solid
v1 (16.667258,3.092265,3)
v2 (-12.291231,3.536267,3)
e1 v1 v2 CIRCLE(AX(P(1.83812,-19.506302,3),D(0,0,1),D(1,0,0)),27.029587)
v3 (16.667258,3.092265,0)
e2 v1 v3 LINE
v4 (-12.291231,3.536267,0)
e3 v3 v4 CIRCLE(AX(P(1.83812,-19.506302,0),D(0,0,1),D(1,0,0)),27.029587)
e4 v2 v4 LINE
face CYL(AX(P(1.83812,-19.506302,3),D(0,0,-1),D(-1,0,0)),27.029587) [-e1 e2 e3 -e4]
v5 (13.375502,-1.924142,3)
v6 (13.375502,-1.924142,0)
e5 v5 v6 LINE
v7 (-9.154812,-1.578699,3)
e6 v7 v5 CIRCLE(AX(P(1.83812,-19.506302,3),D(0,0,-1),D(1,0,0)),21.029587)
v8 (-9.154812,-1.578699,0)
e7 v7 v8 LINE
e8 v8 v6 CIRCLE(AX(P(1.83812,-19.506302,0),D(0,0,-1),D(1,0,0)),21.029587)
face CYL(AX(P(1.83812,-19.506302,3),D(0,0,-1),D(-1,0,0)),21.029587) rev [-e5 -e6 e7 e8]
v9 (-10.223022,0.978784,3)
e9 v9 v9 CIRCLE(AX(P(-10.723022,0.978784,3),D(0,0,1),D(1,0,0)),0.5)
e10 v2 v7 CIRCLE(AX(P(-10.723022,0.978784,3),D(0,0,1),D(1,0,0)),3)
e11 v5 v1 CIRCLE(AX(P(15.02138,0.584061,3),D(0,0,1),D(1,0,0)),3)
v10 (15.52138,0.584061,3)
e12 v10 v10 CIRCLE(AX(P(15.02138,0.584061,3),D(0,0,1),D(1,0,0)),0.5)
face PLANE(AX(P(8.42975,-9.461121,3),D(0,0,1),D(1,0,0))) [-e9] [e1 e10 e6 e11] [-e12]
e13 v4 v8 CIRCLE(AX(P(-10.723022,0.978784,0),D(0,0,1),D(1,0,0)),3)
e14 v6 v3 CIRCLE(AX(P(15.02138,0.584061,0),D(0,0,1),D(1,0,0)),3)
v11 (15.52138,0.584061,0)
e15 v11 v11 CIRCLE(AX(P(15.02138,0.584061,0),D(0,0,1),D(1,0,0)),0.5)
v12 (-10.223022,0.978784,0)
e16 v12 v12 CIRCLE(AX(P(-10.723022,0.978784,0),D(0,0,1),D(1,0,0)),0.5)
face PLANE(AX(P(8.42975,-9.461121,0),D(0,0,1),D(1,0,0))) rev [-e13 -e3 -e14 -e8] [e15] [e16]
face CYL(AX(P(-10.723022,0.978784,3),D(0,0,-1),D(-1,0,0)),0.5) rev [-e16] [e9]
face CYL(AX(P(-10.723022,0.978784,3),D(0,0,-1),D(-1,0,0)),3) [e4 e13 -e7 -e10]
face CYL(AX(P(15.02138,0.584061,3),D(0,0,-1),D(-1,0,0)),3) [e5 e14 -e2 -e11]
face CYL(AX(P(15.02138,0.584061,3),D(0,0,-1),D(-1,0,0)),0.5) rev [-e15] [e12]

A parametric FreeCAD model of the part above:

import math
import FreeCAD as App
import Part
import Sketcher

V = App.Vector
Q = App.Units.Quantity

doc = App.newDocument("Part")
body = doc.addObject("PartDesign::Body", "Body")

# Sketch on XY plane
sketch1 = doc.addObject("Sketcher::SketchObject", "Sketch")
body.addObject(sketch1)
sketch1.AttachmentSupport = (doc.XY_Plane, [""])
sketch1.MapMode = "FlatFace"
sketch1.addGeometry([
    Part.ArcOfCircle(Part.Circle(V(1.83812, -19.506302, 0), V(0, 0, 1), 27.029587), math.radians(56.727187), math.radians(121.515989)),  # 0
    Part.ArcOfCircle(Part.Circle(V(-10.723022, 0.978784, 0), V(0, 0, 1), 3), math.radians(121.515989), math.radians(301.515989)),  # 1
    Part.ArcOfCircle(Part.Circle(V(1.83812, -19.506302, 0), V(0, 0, 1), 21.029587), math.radians(56.727187), math.radians(121.515989)),  # 2
    Part.ArcOfCircle(Part.Circle(V(15.02138, 0.584061, 0), V(0, 0, 1), 3), math.radians(-123.272813), math.radians(56.727187)),  # 3
    Part.Circle(V(15.02138, 0.584061, 0), V(0, 0, 1), 0.5),  # 4
    Part.Circle(V(-10.723022, 0.978784, 0), V(0, 0, 1), 0.5),  # 5
], False)
sketch1.addConstraint([
    Sketcher.Constraint("Tangent", 0, 2, 1, 1),
    Sketcher.Constraint("Tangent", 1, 2, 2, 2),
    Sketcher.Constraint("Tangent", 2, 1, 3, 1),
    Sketcher.Constraint("Tangent", 3, 2, 0, 1),
    Sketcher.Constraint("Coincident", 2, 3, 0, 3),
    Sketcher.Constraint("Coincident", 4, 3, 3, 3),
    Sketcher.Constraint("Coincident", 5, 3, 1, 3),
    Sketcher.Constraint("Equal", 4, 5),
    Sketcher.Constraint("Diameter", 4, Q("1 mm")),
    Sketcher.Constraint("Radius", 1, Q("3 mm")),
    Sketcher.Constraint("Radius", 0, Q("27.029587 mm")),
    Sketcher.Constraint("DistanceY", 1, 2, -1, 1, Q("1.578699 mm")),
    Sketcher.Constraint("DistanceX", -1, 1, 2, 1, Q("13.375502 mm")),
    Sketcher.Constraint("DistanceX", 1, 3, 3, 3, Q("25.744402 mm")),
    Sketcher.Constraint("DistanceX", -1, 1, 0, 3, Q("1.83812 mm")),
])
pad1 = doc.addObject("PartDesign::Pad", "Pad")
body.addObject(pad1)
pad1.Profile = sketch1
pad1.Length = 3

doc.recompute()
